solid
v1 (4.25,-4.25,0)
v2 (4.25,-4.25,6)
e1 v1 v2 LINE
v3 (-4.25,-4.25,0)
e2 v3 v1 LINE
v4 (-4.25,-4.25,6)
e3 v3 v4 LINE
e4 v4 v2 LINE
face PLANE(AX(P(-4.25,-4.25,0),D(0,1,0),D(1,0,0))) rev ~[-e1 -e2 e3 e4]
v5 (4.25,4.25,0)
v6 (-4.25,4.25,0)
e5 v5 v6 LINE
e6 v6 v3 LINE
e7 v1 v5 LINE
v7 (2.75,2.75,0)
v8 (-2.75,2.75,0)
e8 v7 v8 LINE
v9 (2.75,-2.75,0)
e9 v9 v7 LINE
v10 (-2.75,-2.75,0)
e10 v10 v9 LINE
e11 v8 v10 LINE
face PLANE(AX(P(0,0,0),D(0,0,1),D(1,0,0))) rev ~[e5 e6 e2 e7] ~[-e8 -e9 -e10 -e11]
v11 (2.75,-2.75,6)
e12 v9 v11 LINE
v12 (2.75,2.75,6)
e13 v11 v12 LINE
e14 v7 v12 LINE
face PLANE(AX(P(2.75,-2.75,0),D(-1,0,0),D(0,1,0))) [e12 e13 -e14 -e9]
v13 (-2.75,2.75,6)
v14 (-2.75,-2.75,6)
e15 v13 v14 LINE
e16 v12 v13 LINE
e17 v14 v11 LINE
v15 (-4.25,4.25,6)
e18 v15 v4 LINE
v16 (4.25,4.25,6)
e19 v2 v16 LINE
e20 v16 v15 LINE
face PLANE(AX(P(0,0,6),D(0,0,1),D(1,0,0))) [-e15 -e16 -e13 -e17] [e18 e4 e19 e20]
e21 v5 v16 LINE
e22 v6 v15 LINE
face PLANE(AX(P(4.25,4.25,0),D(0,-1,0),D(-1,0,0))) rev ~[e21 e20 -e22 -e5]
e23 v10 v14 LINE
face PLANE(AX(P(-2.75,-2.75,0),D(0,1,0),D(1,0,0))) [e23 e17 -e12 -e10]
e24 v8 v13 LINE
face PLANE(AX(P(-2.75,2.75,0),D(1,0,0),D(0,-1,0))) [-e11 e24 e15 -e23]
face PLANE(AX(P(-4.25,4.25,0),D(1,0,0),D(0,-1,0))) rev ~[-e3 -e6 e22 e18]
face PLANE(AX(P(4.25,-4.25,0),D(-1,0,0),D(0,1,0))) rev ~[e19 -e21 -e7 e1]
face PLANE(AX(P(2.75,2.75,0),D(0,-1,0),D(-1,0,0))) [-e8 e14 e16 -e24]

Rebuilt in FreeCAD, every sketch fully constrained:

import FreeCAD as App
import Part
import Sketcher

V = App.Vector

doc = App.newDocument("Part")
body = doc.addObject("PartDesign::Body", "Body")

sketch1 = body.newObject("Sketcher::SketchObject", "Sketch")
sketch1.AttachmentSupport = (doc.getObject("XY_Plane"), [""])
sketch1.MapMode = "FlatFace"
sketch1.addGeometry([
    Part.LineSegment(V(-4, 4, 0), V(-4, -4, 0)),
    Part.LineSegment(V(-4, -4, 0), V(4, -4, 0)),
    Part.LineSegment(V(4, -4, 0), V(4, 4, 0)),
    Part.LineSegment(V(4, 4, 0), V(-4, 4, 0)),
    Part.LineSegment(V(3, -3, 0), V(-3, -3, 0)),
    Part.LineSegment(V(-3, -3, 0), V(-3, 3, 0)),
    Part.LineSegment(V(-3, 3, 0), V(3, 3, 0)),
    Part.LineSegment(V(3, 3, 0), V(3, -3, 0)),
], False)
sketch1.addConstraint([
    Sketcher.Constraint("Coincident", 0, 2, 1, 1),
    Sketcher.Constraint("Coincident", 1, 2, 2, 1),
    Sketcher.Constraint("Coincident", 2, 2, 3, 1),
    Sketcher.Constraint("Coincident", 3, 2, 0, 1),
    Sketcher.Constraint("Coincident", 4, 2, 5, 1),
    Sketcher.Constraint("Coincident", 5, 2, 6, 1),
    Sketcher.Constraint("Coincident", 6, 2, 7, 1),
    Sketcher.Constraint("Coincident", 7, 2, 4, 1),
    Sketcher.Constraint("Vertical", 0),
    Sketcher.Constraint("Horizontal", 1),
    Sketcher.Constraint("Vertical", 2),
    Sketcher.Constraint("Horizontal", 3),
    Sketcher.Constraint("Horizontal", 4),
    Sketcher.Constraint("Vertical", 5),
    Sketcher.Constraint("Horizontal", 6),
    Sketcher.Constraint("Vertical", 7),
    Sketcher.Constraint("Symmetric", 0, 2, 2, 2, -1, 1),
    Sketcher.Constraint("Symmetric", 4, 2, 6, 2, -1, 1),
    Sketcher.Constraint("Equal", 3, 0),
    Sketcher.Constraint("Equal", 6, 5),
    Sketcher.Constraint("DistanceX", 1, 1, 1, 2, 8.5),
    Sketcher.Constraint("DistanceX", 4, 2, 4, 1, 5.5),
])
pad1 = body.newObject("PartDesign::Pad", "Pad")
pad1.Profile = sketch1
pad1.Length = 6

doc.recompute()
